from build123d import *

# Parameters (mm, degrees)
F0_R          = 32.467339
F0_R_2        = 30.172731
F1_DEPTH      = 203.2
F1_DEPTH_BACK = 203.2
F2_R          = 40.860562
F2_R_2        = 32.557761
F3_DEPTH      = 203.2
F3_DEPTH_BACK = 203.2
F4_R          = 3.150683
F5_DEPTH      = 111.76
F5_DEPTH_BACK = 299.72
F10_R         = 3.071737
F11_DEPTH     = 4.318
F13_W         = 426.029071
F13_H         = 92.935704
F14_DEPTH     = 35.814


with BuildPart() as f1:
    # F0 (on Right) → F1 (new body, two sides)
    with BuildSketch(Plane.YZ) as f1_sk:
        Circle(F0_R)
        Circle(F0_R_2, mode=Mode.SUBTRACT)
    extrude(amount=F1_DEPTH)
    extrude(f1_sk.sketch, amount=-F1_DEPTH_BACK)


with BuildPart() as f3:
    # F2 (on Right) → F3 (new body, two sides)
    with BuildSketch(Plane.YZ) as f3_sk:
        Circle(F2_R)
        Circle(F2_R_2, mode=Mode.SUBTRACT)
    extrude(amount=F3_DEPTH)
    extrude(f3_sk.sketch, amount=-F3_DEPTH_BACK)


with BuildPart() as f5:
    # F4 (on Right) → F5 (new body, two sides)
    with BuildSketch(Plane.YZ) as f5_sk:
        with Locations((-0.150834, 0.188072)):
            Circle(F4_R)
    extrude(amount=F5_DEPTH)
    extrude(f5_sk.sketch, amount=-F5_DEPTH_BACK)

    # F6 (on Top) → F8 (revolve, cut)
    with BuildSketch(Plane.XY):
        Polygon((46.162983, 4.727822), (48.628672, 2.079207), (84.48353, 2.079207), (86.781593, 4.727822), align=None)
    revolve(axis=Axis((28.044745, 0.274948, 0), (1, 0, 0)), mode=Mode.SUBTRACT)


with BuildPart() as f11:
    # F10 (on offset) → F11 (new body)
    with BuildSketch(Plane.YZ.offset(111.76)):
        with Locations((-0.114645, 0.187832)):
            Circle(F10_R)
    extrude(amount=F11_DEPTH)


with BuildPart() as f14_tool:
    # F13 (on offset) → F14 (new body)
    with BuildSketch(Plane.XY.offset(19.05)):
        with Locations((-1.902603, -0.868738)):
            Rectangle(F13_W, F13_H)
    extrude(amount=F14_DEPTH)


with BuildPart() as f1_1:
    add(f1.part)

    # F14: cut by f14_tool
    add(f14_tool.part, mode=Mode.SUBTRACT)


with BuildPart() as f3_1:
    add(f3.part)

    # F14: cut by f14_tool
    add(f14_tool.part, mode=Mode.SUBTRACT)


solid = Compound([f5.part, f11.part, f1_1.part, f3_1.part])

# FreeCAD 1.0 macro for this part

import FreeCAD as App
import Part
import Sketcher

V = App.Vector
Q = App.Units.Quantity

doc = App.newDocument("Part")
params = doc.addObject("Spreadsheet::Sheet", "Params")
for row, (alias, value) in enumerate([
    ("pad1_length", "8 in"),
    ("pad1_length2", "8 in"),
    ("pad2_length", "8 in"),
    ("pad2_length2", "8 in"),
    ("pad3_length", "4.4 in"),
    ("pad3_length2", "11.8 in"),
    ("groove_angle", "360 deg"),
    ("pad4_length", "0.17 in"),
    ("pad5_length", "1.41 in"),
], start=1):
    params.set(f"A{row}", alias)
    params.set(f"B{row}", "=" + value)
    params.setAlias(f"B{row}", alias)

body = doc.addObject("PartDesign::Body", "Body")

sketch1 = body.newObject("Sketcher::SketchObject", "Sketch")
sketch1.AttachmentSupport = (doc.getObject("YZ_Plane"), [""])
sketch1.MapMode = "FlatFace"
sketch1.addGeometry([
    Part.Circle(V(0, 0, 0), V(0, 0, 1), 32.467339),
    Part.Circle(V(0, 0, 0), V(0, 0, 1), 30.172731),
], False)
sketch1.addConstraint([
    Sketcher.Constraint("Coincident", 0, 3, -1, 1),
    Sketcher.Constraint("Coincident", 1, 3, -1, 1),
    Sketcher.Constraint("Diameter", 0, Q("64.934678 mm")),
    Sketcher.Constraint("Diameter", 1, Q("60.345462 mm")),
])
pad1 = body.newObject("PartDesign::Pad", "Pad")
pad1.Profile = sketch1
pad1.Type = "TwoLengths"
pad1.setExpression("Length", "Params.pad1_length")
pad1.setExpression("Length2", "Params.pad1_length2")
body2 = doc.addObject("PartDesign::Body", "Body001")

sketch2 = body2.newObject("Sketcher::SketchObject", "Sketch001")
sketch2.AttachmentSupport = (doc.getObject("YZ_Plane001"), [""])
sketch2.MapMode = "FlatFace"
sketch2.addGeometry([
    Part.Circle(V(0, 0, 0), V(0, 0, 1), 40.860562),
    Part.Circle(V(0, 0, 0), V(0, 0, 1), 32.557761),
], False)
sketch2.addConstraint([
    Sketcher.Constraint("Coincident", 0, 3, -1, 1),
    Sketcher.Constraint("Coincident", 1, 3, -1, 1),
    Sketcher.Constraint("Diameter", 1, Q("65.115522 mm")),
    Sketcher.Constraint("Diameter", 0, Q("81.721124 mm")),
])
pad2 = body2.newObject("PartDesign::Pad", "Pad001")
pad2.Profile = sketch2
pad2.Type = "TwoLengths"
pad2.setExpression("Length", "Params.pad2_length")
pad2.setExpression("Length2", "Params.pad2_length2")
body3 = doc.addObject("PartDesign::Body", "Body002")

sketch3 = body3.newObject("Sketcher::SketchObject", "Sketch002")
sketch3.AttachmentSupport = (doc.getObject("YZ_Plane002"), [""])
sketch3.MapMode = "FlatFace"
sketch3.addGeometry(Part.Circle(V(-0.150834, 0.188072, 0), V(0, 0, 1), 3.150683), False)
sketch3.addConstraint([
    Sketcher.Constraint("Diameter", 0, Q("6.301366 mm")),
    Sketcher.Constraint("DistanceX", 0, 3, -1, 1, Q("0.150834 mm")),
    Sketcher.Constraint("DistanceY", -1, 1, 0, 3, Q("0.188072 mm")),
])
pad3 = body3.newObject("PartDesign::Pad", "Pad002")
pad3.Profile = sketch3
pad3.Type = "TwoLengths"
pad3.setExpression("Length", "Params.pad3_length")
pad3.setExpression("Length2", "Params.pad3_length2")

sketch4 = body3.newObject("Sketcher::SketchObject", "Sketch003")
sketch4.AttachmentSupport = (doc.getObject("XY_Plane002"), [""])
sketch4.MapMode = "FlatFace"
sketch4.addGeometry([
    Part.LineSegment(V(46.162983, 4.727822, 0), V(48.628672, 2.079207, 0)),
    Part.LineSegment(V(48.628672, 2.079207, 0), V(84.48353, 2.079207, 0)),
    Part.LineSegment(V(84.48353, 2.079207, 0), V(86.781593, 4.727822, 0)),
    Part.LineSegment(V(86.781593, 4.727822, 0), V(46.162983, 4.727822, 0)),
], False)
sketch4.addGeometry(Part.LineSegment(V(46.162983, 0.274948, 0), V(86.781593, 0.274948, 0)), True)
sketch4.addConstraint([
    Sketcher.Constraint("Coincident", 0, 2, 1, 1),
    Sketcher.Constraint("Coincident", 1, 2, 2, 1),
    Sketcher.Constraint("Coincident", 2, 2, 3, 1),
    Sketcher.Constraint("Coincident", 3, 2, 0, 1),
    Sketcher.Constraint("Horizontal", 1),
    Sketcher.Constraint("Horizontal", 3),
    Sketcher.Constraint("Horizontal", 4),
    Sketcher.Constraint("Vertical", 3, 2, 4, 1),
    Sketcher.Constraint("Vertical", 2, 2, 4, 2),
    Sketcher.Constraint("Distance", 2, Q("3.506602 mm")),
    Sketcher.Constraint("DistanceX", 3, 2, 3, 1, Q("40.61861 mm")),
    Sketcher.Constraint("Distance", 0, Q("3.618672 mm")),
    Sketcher.Constraint("DistanceX", 1, 1, 1, 2, Q("35.854858 mm")),
    Sketcher.Constraint("DistanceX", -1, 1, 1, 2, Q("84.48353 mm")),
    Sketcher.Constraint("DistanceY", -1, 1, 2, 2, Q("4.727822 mm")),
    Sketcher.Constraint("DistanceY", 4, 1, 0, 2, Q("1.804259 mm")),
])
groove = body3.newObject("PartDesign::Groove", "Groove")
groove.Profile = sketch4
groove.ReferenceAxis = (sketch4, ["Axis0"])
groove.setExpression("Angle", "Params.groove_angle")
body4 = doc.addObject("PartDesign::Body", "Body003")

sketch5 = body4.newObject("Sketcher::SketchObject", "Sketch004")
sketch5.AttachmentSupport = (doc.getObject("YZ_Plane003"), [""])
sketch5.MapMode = "FlatFace"
sketch5.AttachmentOffset = App.Placement(V(0, 0, 4.4 * 25.4), App.Rotation())
sketch5.addGeometry(Part.Circle(V(-0.114645, 0.187832, 0), V(0, 0, 1), 3.071737), False)
sketch5.addConstraint([
    Sketcher.Constraint("Diameter", 0, Q("6.143474 mm")),
    Sketcher.Constraint("DistanceX", 0, 3, -1, 1, Q("0.114645 mm")),
    Sketcher.Constraint("DistanceY", -1, 1, 0, 3, Q("0.187832 mm")),
])
pad4 = body4.newObject("PartDesign::Pad", "Pad003")
pad4.Profile = sketch5
pad4.setExpression("Length", "Params.pad4_length")
body5 = doc.addObject("PartDesign::Body", "Body004")

sketch6 = body5.newObject("Sketcher::SketchObject", "Sketch005")
sketch6.AttachmentSupport = (doc.getObject("XY_Plane004"), [""])
sketch6.MapMode = "FlatFace"
sketch6.AttachmentOffset = App.Placement(V(0, 0, 0.75 * 25.4), App.Rotation())
sketch6.addGeometry([
    Part.LineSegment(V(-214.917138, 45.599114, 0), V(-214.917138, -47.33659, 0)),
    Part.LineSegment(V(-214.917138, -47.33659, 0), V(211.111932, -47.33659, 0)),
    Part.LineSegment(V(211.111932, -47.33659, 0), V(211.111932, 45.599114, 0)),
    Part.LineSegment(V(211.111932, 45.599114, 0), V(-214.917138, 45.599114, 0)),
], False)
sketch6.addConstraint([
    Sketcher.Constraint("Coincident", 0, 2, 1, 1),
    Sketcher.Constraint("Coincident", 1, 2, 2, 1),
    Sketcher.Constraint("Coincident", 2, 2, 3, 1),
    Sketcher.Constraint("Coincident", 3, 2, 0, 1),
    Sketcher.Constraint("Vertical", 0),
    Sketcher.Constraint("Horizontal", 1),
    Sketcher.Constraint("Vertical", 2),
    Sketcher.Constraint("Horizontal", 3),
    Sketcher.Constraint("DistanceX", 1, 1, 1, 2, Q("426.029071 mm")),
    Sketcher.Constraint("DistanceY", 0, 2, 0, 1, Q("92.935704 mm")),
    Sketcher.Constraint("DistanceX", 0, 2, -1, 1, Q("214.917138 mm")),
    Sketcher.Constraint("DistanceY", 0, 2, -1, 1, Q("47.33659 mm")),
])
pad5 = body5.newObject("PartDesign::Pad", "Pad004")
pad5.Profile = sketch6
pad5.setExpression("Length", "Params.pad5_length")
doc.recompute()

body6 = doc.addObject("PartDesign::Body", "Body005")
body6.BaseFeature = body5
boolean = body.newObject("PartDesign::Boolean", "Boolean")
boolean.Type = "Cut"
boolean.addObjects([body6])
doc.recompute()

boolean2 = body2.newObject("PartDesign::Boolean", "Boolean001")
boolean2.Type = "Cut"
boolean2.addObjects([body5])

doc.recompute()
